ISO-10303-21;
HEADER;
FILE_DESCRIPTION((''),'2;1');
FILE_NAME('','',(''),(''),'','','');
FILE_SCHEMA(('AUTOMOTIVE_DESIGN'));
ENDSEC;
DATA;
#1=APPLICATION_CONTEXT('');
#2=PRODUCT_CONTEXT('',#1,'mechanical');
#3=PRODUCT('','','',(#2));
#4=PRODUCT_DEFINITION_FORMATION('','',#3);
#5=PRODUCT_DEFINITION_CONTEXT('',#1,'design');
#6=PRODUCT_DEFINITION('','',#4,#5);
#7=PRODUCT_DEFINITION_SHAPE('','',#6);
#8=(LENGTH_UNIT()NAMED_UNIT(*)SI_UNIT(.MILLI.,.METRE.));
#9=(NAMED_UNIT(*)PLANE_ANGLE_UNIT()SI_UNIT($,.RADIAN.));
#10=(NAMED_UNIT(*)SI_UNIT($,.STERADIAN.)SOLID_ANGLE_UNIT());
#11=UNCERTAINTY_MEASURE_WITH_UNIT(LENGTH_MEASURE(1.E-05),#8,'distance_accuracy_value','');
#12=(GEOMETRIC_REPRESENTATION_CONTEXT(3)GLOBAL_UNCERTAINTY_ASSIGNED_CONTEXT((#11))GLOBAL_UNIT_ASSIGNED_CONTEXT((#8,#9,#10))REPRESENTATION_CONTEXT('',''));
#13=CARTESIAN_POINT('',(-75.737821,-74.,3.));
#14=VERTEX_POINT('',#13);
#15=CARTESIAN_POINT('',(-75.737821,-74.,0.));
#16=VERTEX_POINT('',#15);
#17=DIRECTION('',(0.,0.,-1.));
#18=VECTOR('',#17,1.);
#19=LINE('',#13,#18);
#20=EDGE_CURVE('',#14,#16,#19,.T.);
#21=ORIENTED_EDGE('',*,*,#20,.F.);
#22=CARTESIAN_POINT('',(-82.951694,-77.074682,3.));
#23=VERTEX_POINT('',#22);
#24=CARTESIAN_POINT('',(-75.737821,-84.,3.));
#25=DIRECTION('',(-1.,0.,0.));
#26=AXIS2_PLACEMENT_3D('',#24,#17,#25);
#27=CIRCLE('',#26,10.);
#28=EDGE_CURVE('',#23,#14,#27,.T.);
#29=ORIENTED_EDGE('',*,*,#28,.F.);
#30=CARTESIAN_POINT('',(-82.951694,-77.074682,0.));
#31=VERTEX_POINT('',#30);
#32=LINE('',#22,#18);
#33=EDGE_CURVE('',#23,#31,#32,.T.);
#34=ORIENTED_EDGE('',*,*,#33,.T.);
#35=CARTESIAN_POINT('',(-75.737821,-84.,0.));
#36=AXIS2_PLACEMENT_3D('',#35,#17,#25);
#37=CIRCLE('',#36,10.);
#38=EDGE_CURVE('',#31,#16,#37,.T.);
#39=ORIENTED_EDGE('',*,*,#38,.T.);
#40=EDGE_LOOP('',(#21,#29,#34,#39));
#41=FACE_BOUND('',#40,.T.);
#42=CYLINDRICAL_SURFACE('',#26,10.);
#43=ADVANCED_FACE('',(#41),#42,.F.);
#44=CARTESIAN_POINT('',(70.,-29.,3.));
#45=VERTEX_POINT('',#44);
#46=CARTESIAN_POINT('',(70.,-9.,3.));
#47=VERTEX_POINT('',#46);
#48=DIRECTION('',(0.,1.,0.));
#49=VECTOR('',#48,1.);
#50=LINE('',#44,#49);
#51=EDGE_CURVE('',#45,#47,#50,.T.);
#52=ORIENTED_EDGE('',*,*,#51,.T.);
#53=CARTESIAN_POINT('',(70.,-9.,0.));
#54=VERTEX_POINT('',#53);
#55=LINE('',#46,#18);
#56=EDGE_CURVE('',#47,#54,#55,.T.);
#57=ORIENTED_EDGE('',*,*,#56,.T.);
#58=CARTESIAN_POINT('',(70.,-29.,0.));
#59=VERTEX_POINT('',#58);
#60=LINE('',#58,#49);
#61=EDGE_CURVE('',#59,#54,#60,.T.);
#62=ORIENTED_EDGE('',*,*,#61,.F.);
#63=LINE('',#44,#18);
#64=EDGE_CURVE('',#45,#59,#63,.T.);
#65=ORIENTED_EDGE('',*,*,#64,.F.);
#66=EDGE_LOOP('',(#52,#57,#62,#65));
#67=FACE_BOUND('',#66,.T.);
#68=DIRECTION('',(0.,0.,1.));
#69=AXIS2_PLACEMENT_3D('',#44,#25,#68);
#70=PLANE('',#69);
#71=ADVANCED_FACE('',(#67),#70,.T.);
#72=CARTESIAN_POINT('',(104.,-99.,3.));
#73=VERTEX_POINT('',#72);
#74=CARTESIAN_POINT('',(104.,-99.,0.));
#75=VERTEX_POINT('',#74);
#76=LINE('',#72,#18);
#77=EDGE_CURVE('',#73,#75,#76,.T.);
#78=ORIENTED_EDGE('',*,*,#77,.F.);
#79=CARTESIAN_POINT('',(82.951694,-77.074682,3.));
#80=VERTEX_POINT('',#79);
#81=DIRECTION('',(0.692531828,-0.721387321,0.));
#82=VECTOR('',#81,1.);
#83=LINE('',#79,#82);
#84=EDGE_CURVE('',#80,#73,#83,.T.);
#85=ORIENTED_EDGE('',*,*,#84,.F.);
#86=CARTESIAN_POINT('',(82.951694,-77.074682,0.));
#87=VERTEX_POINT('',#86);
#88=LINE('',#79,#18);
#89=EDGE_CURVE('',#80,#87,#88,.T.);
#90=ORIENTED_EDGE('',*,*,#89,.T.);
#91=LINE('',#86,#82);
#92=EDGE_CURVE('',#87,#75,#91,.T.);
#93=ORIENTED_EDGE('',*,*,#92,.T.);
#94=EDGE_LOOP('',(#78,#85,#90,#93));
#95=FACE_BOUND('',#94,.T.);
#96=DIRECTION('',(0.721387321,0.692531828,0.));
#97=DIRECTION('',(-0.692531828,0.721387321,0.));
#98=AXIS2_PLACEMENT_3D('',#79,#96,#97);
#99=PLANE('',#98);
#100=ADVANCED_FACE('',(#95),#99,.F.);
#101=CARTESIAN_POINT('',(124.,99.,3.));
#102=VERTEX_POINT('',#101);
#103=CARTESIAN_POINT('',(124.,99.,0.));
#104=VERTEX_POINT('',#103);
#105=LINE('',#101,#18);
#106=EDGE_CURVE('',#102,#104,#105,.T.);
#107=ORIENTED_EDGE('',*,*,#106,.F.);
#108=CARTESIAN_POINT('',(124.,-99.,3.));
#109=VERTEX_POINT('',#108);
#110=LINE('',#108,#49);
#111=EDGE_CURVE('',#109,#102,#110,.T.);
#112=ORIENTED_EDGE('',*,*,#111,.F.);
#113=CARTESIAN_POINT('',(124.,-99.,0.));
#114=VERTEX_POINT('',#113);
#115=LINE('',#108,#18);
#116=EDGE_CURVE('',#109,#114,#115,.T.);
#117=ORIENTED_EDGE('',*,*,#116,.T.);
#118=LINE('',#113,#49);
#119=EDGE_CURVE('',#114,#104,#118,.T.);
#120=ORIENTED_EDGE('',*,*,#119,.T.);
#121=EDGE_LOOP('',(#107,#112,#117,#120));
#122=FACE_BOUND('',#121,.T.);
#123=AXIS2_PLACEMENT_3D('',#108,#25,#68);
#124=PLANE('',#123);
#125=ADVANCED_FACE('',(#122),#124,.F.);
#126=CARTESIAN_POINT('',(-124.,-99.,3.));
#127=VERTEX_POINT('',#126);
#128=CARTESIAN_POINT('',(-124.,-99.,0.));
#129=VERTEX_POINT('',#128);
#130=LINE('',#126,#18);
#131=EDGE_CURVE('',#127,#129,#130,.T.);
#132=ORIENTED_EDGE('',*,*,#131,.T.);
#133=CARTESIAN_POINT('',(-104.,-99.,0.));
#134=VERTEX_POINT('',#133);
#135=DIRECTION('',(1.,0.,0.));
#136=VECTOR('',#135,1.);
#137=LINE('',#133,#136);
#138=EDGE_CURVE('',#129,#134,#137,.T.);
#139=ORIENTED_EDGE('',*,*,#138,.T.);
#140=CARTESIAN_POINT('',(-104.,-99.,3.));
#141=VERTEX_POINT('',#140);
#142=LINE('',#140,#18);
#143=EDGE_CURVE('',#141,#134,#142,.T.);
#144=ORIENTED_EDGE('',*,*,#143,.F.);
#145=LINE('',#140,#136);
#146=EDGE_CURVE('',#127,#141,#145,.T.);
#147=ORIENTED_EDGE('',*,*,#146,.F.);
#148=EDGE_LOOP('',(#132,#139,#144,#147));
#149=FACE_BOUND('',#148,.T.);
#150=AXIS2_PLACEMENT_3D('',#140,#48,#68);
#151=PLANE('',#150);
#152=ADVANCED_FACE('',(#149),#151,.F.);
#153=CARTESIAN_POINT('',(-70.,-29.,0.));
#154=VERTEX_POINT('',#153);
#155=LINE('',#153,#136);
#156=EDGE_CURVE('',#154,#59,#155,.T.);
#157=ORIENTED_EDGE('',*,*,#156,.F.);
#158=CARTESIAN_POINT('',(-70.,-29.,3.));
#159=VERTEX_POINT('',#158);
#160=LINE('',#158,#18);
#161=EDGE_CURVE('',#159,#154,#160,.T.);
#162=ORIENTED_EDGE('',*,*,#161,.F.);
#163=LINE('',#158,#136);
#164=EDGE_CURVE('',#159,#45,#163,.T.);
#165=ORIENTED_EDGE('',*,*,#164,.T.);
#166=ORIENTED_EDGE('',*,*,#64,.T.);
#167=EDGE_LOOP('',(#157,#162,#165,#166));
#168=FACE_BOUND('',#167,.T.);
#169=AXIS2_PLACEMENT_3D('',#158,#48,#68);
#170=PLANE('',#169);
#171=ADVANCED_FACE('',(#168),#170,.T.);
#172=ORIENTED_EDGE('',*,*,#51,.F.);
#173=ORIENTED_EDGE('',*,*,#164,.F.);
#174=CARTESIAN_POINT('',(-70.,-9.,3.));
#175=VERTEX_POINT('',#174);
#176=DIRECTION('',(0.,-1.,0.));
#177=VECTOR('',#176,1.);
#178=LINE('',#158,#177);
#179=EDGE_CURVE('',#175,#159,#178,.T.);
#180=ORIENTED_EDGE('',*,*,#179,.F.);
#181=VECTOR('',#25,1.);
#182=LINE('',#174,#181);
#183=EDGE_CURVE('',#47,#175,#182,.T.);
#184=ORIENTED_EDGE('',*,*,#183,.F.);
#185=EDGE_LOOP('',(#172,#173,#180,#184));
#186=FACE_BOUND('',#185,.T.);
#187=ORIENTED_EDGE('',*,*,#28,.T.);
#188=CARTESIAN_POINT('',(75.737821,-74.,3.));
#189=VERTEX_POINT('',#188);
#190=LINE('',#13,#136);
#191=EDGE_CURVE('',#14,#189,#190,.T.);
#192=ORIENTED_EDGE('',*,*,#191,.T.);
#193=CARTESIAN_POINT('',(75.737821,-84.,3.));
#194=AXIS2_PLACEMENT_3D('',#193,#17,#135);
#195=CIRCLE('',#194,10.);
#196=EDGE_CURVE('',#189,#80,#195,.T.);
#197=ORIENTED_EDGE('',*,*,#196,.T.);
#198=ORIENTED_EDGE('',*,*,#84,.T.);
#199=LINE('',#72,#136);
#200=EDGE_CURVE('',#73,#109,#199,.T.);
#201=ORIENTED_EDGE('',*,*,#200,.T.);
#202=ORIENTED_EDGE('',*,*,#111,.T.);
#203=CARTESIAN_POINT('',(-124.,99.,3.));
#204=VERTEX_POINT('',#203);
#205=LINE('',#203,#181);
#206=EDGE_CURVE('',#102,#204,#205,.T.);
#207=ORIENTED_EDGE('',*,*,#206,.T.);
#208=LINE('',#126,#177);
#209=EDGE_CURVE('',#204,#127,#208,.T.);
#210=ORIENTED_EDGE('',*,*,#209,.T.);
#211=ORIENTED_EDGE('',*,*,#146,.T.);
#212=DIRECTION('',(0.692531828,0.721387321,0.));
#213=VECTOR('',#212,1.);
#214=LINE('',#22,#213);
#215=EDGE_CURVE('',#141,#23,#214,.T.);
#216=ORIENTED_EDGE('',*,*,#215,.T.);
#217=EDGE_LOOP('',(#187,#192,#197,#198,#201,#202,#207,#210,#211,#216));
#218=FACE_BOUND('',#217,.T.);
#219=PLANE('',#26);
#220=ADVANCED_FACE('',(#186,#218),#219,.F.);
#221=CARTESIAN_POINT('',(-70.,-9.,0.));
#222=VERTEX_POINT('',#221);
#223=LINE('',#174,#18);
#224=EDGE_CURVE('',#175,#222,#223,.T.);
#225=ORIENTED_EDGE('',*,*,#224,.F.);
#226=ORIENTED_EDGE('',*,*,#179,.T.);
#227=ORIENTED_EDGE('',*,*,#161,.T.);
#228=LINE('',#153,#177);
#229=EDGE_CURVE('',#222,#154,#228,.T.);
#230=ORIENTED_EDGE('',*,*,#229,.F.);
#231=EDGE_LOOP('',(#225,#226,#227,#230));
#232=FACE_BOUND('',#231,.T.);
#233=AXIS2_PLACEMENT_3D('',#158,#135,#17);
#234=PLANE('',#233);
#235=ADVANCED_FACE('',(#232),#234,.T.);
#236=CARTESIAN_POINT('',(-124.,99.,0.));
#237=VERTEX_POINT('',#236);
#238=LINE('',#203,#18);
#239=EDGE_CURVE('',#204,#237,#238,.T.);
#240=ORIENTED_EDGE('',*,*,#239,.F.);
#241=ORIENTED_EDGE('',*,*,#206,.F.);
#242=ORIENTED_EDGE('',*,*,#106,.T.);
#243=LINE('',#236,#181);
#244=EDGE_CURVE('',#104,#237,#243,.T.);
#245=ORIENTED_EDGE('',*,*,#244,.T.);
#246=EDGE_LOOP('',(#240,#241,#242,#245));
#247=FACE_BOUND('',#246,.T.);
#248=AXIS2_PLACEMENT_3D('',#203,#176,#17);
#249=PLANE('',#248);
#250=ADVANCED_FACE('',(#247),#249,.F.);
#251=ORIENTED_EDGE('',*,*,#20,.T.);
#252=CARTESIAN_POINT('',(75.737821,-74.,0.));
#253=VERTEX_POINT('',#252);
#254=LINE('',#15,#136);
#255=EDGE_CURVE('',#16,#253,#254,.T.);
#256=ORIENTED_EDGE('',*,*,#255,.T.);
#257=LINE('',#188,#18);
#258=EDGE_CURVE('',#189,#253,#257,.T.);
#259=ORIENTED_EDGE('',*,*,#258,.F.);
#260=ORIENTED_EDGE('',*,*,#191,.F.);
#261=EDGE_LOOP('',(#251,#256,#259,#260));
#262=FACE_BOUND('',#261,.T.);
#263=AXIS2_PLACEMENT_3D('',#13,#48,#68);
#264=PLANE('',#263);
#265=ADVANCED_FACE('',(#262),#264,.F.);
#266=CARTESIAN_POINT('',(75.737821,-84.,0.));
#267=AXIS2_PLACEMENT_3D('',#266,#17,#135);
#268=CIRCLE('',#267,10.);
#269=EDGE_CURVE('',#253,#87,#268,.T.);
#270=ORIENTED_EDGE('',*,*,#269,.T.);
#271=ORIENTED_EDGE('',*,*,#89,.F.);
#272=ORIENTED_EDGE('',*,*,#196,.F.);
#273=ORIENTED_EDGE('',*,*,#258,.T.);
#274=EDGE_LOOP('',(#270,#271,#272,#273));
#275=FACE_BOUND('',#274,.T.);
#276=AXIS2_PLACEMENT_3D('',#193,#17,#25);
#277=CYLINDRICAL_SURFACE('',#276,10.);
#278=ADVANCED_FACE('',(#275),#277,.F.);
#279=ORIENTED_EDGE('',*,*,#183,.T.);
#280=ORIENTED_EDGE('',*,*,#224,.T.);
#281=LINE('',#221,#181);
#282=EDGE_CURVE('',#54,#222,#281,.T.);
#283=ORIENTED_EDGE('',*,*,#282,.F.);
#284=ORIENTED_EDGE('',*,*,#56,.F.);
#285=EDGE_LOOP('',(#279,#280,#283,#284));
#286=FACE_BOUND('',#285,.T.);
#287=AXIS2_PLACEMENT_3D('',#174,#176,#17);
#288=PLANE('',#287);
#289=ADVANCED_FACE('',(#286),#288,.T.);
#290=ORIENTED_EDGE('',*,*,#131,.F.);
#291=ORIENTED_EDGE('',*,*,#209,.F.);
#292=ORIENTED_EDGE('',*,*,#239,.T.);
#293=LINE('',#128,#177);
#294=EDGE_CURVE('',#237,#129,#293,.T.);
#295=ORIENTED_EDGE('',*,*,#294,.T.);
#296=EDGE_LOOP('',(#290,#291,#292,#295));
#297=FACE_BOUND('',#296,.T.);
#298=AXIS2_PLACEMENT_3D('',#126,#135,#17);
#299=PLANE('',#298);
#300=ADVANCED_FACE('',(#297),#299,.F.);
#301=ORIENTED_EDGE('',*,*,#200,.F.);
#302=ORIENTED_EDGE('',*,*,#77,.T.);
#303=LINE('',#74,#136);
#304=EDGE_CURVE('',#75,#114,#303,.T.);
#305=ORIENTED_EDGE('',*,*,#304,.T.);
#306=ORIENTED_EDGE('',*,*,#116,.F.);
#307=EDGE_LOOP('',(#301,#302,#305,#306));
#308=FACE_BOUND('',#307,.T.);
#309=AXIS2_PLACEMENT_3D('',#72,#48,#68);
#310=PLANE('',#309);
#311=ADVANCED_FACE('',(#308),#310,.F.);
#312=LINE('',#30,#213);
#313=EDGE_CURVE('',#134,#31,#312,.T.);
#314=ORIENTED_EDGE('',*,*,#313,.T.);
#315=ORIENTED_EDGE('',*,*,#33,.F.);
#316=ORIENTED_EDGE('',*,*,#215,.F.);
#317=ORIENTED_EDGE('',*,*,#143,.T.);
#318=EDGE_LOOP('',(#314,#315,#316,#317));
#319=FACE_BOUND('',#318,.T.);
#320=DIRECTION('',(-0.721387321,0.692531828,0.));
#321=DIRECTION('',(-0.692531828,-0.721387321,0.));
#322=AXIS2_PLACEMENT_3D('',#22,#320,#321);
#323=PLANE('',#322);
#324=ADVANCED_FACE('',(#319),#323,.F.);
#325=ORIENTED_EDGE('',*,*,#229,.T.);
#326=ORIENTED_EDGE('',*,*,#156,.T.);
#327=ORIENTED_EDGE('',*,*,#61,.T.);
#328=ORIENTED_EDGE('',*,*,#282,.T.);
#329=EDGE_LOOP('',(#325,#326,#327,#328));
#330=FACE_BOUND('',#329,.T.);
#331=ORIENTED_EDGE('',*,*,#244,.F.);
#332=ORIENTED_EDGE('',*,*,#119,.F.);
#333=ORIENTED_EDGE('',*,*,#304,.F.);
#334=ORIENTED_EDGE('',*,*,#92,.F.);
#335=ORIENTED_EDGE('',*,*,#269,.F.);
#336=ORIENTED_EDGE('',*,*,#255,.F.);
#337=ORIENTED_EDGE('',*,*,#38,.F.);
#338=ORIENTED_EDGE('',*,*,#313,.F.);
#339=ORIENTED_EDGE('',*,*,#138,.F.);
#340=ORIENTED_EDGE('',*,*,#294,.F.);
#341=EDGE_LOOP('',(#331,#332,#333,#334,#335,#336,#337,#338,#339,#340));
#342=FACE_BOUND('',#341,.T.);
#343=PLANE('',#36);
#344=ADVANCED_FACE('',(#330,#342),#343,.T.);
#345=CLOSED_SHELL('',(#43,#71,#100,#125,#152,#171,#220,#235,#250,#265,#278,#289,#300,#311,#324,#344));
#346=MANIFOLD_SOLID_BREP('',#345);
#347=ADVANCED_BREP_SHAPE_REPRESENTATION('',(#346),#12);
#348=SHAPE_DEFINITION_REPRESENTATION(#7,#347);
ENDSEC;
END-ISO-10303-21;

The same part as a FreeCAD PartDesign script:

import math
import FreeCAD as App
import Part
import Sketcher
Q = App.Units.Quantity

doc = App.newDocument("Part")
body = doc.addObject("PartDesign::Body", "Body")

# Sketch on XY plane
sketch1 = body.newObject("Sketcher::SketchObject", "Sketch")
sketch1.AttachmentSupport = (doc.getObject("XY_Plane"), [""])
sketch1.MapMode = "FlatFace"
sketch1.addGeometry([
    Part.LineSegment(App.Vector(-124, 99, 0), App.Vector(-124, -99, 0)),  # 0
    Part.LineSegment(App.Vector(-124, -99, 0), App.Vector(-104, -99, 0)),  # 1
    Part.LineSegment(App.Vector(-104, -99, 0), App.Vector(-82.951694, -77.074682, 0)),  # 2
    Part.ArcOfCircle(Part.Circle(App.Vector(-75.737821, -84, 0), App.Vector(0, 0, 1), 10), math.radians(90), math.radians(136.169139)),  # 3
    Part.LineSegment(App.Vector(-75.737821, -74, 0), App.Vector(75.737821, -74, 0)),  # 4
    Part.ArcOfCircle(Part.Circle(App.Vector(75.737821, -84, 0), App.Vector(0, 0, 1), 10), math.radians(43.830861), math.radians(90)),  # 5
    Part.LineSegment(App.Vector(82.951694, -77.074682, 0), App.Vector(104, -99, 0)),  # 6
    Part.LineSegment(App.Vector(104, -99, 0), App.Vector(124, -99, 0)),  # 7
    Part.LineSegment(App.Vector(124, -99, 0), App.Vector(124, 99, 0)),  # 8
    Part.LineSegment(App.Vector(124, 99, 0), App.Vector(-124, 99, 0)),  # 9
    Part.LineSegment(App.Vector(-70, -29, 0), App.Vector(-70, -9, 0)),  # 10
    Part.LineSegment(App.Vector(-70, -9, 0), App.Vector(70, -9, 0)),  # 11
    Part.LineSegment(App.Vector(70, -9, 0), App.Vector(70, -29, 0)),  # 12
    Part.LineSegment(App.Vector(70, -29, 0), App.Vector(-70, -29, 0)),  # 13
], False)
sketch1.addConstraint([
    Sketcher.Constraint("Coincident", 0, 2, 1, 1),
    Sketcher.Constraint("Coincident", 1, 2, 2, 1),
    Sketcher.Constraint("Tangent", 2, 2, 3, 2),
    Sketcher.Constraint("Tangent", 3, 1, 4, 1),
    Sketcher.Constraint("Tangent", 4, 2, 5, 2),
    Sketcher.Constraint("Tangent", 5, 1, 6, 1),
    Sketcher.Constraint("Coincident", 6, 2, 7, 1),
    Sketcher.Constraint("Coincident", 7, 2, 8, 1),
    Sketcher.Constraint("Coincident", 8, 2, 9, 1),
    Sketcher.Constraint("Coincident", 9, 2, 0, 1),
    Sketcher.Constraint("Coincident", 10, 2, 11, 1),
    Sketcher.Constraint("Coincident", 11, 2, 12, 1),
    Sketcher.Constraint("Coincident", 12, 2, 13, 1),
    Sketcher.Constraint("Coincident", 13, 2, 10, 1),
    Sketcher.Constraint("Vertical", 0),
    Sketcher.Constraint("Horizontal", 1),
    Sketcher.Constraint("Horizontal", 4),
    Sketcher.Constraint("Horizontal", 7),
    Sketcher.Constraint("Vertical", 8),
    Sketcher.Constraint("Horizontal", 9),
    Sketcher.Constraint("Vertical", 10),
    Sketcher.Constraint("Horizontal", 11),
    Sketcher.Constraint("Vertical", 12),
    Sketcher.Constraint("Horizontal", 13),
    Sketcher.Constraint("Equal", 3, 5),
    Sketcher.Constraint("Symmetric", 0, 2, 8, 2, -1, 1),
    Sketcher.Constraint("Symmetric", 2, 2, 5, 1, -2),
    Sketcher.Constraint("Horizontal", 1, 2, 6, 2),
    Sketcher.Constraint("Equal", 7, 10),
    Sketcher.Constraint("Radius", 3, Q("10 mm")),
    Sketcher.Constraint("DistanceX", 1, 1, 1, 2, Q("20 mm")),
    Sketcher.Constraint("DistanceX", 9, 2, 9, 1, Q("248 mm")),
    Sketcher.Constraint("DistanceX", 11, 1, 11, 2, Q("140 mm")),
    Sketcher.Constraint("DistanceY", 0, 2, 0, 1, Q("198 mm")),
    Sketcher.Constraint("DistanceY", 3, 3, -1, 1, Q("84 mm")),
    Sketcher.Constraint("DistanceX", 10, 2, -1, 1, Q("70 mm")),
    Sketcher.Constraint("DistanceY", 10, 2, -1, 1, Q("9 mm")),
    Sketcher.Constraint("Distance", 2, Q("30.393268 mm")),
])
pad1 = body.newObject("PartDesign::Pad", "Pad")
pad1.Profile = sketch1
pad1.Length = 3

doc.recompute()
